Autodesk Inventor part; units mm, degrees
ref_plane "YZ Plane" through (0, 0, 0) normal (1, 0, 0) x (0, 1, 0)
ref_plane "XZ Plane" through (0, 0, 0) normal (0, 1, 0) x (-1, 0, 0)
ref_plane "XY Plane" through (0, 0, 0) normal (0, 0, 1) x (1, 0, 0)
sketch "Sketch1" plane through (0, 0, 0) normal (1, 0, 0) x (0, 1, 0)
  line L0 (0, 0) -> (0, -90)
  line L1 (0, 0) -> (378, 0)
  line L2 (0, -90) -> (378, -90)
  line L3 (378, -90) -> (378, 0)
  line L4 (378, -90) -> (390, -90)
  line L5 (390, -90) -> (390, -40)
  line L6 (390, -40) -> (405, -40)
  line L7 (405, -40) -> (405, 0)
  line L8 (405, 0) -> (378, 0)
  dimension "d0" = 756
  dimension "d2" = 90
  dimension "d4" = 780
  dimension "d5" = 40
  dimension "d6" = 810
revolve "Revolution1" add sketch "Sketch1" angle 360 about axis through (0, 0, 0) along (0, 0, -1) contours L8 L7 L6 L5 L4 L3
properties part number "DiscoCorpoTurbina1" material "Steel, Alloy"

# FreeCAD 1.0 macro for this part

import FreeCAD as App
import Part
import Sketcher
from FreeCAD import Vector

doc = App.newDocument("Part")
body = doc.addObject("PartDesign::Body", "Body")

# Sketch on YZ plane
sketch1 = doc.addObject("Sketcher::SketchObject", "Sketch")
body.addObject(sketch1)
sketch1.AttachmentSupport = (doc.YZ_Plane, [""])
sketch1.MapMode = "FlatFace"
sketch1.addGeometry([
    Part.LineSegment(Vector(405, 0, 0), Vector(378, 0, 0)),  # 0
    Part.LineSegment(Vector(378, 0, 0), Vector(378, -90, 0)),  # 1
    Part.LineSegment(Vector(378, -90, 0), Vector(390, -90, 0)),  # 2
    Part.LineSegment(Vector(390, -90, 0), Vector(390, -40, 0)),  # 3
    Part.LineSegment(Vector(390, -40, 0), Vector(405, -40, 0)),  # 4
    Part.LineSegment(Vector(405, -40, 0), Vector(405, 0, 0)),  # 5
], False)
sketch1.addConstraint([
    Sketcher.Constraint("Coincident", 0, 2, 1, 1),
    Sketcher.Constraint("Coincident", 1, 2, 2, 1),
    Sketcher.Constraint("Coincident", 2, 2, 3, 1),
    Sketcher.Constraint("Coincident", 3, 2, 4, 1),
    Sketcher.Constraint("Coincident", 4, 2, 5, 1),
    Sketcher.Constraint("Coincident", 5, 2, 0, 1),
    Sketcher.Constraint("Horizontal", 0),
    Sketcher.Constraint("Vertical", 1),
    Sketcher.Constraint("Horizontal", 2),
    Sketcher.Constraint("Vertical", 3),
    Sketcher.Constraint("Horizontal", 4),
    Sketcher.Constraint("Vertical", 5),
    Sketcher.Constraint("PointOnObject", 0, 2, -1),
    Sketcher.Constraint("DistanceY", 1, 2, 1, 1, 90.0),
    Sketcher.Constraint("DistanceY", 5, 1, 5, 2, 40.0),
    Sketcher.Constraint("DistanceX", 0, 2, 0, 1, 27.0),
    Sketcher.Constraint("DistanceX", 2, 1, 2, 2, 12.0),
    Sketcher.Constraint("DistanceX", -1, 1, 0, 2, 378.0),
])
revolution = doc.addObject("PartDesign::Revolution", "Revolution")
body.addObject(revolution)
revolution.Profile = sketch1
revolution.ReferenceAxis = (sketch1, ["V_Axis"])
revolution.Angle = 360

doc.recompute()
